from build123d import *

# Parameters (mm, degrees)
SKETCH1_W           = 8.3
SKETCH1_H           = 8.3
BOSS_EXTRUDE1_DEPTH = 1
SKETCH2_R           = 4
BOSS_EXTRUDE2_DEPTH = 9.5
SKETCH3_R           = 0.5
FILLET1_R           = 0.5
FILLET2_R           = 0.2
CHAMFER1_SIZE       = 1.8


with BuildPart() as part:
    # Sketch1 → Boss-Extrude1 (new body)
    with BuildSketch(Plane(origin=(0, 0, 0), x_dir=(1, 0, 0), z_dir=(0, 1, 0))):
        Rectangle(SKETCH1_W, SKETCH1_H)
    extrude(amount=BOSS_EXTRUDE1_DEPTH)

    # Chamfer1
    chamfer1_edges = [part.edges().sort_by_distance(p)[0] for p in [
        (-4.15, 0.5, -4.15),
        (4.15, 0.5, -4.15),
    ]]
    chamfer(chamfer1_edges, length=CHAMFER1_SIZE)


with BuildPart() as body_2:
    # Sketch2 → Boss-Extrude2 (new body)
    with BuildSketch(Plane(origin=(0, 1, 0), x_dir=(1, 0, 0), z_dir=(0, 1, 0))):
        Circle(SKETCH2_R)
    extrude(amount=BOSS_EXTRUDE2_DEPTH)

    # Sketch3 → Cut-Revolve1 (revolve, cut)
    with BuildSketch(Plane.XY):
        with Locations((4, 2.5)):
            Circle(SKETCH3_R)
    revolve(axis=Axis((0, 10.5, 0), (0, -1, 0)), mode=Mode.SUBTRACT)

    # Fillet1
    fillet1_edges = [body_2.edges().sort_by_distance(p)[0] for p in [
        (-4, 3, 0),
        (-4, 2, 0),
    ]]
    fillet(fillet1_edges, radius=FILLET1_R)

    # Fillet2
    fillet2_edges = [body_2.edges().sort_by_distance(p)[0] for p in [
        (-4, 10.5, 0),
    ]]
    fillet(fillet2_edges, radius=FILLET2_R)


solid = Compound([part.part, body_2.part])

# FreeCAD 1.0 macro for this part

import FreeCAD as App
import Part
import Sketcher
from FreeCAD import Vector


def edges_at(feature, points):
    """Names of the edges that pass closest to the given points."""
    edges = feature.Shape.Edges
    near = lambda p: min(range(len(edges)), key=lambda i: edges[i].distToShape(Part.Vertex(*p))[0])
    return sorted({f"Edge{near(p) + 1}" for p in points})


def add_polygon(sketch, points):
    """Adds a closed chain of lines whose ends are joined by coincident constraints."""
    first, n = sketch.GeometryCount, len(points)
    for a, b in zip(points, points[1:] + points[:1]):
        sketch.addGeometry(Part.LineSegment(App.Vector(*a, 0), App.Vector(*b, 0)), False)
    for i in range(n):
        sketch.addConstraint(Sketcher.Constraint("Coincident", first + i, 2, first + (i + 1) % n, 1))

doc = App.newDocument("Part")
body = doc.addObject("PartDesign::Body", "Body")

sketch1 = body.newObject("Sketcher::SketchObject", "Sketch")
sketch1.AttachmentSupport = (doc.getObject("XZ_Plane"), [""])
sketch1.MapMode = "FlatFace"
add_polygon(sketch1, [(-4, -4), (-4, 4), (4, 4), (4, -4)])
sketch1.addConstraint(Sketcher.Constraint("Vertical", 0))
sketch1.addConstraint(Sketcher.Constraint("Horizontal", 1))
sketch1.addConstraint(Sketcher.Constraint("Vertical", 2))
sketch1.addConstraint(Sketcher.Constraint("Horizontal", 3))
sketch1.addConstraint(Sketcher.Constraint("Symmetric", 0, 2, 2, 2, -1, 1))
sketch1.addConstraint(Sketcher.Constraint("Equal", 3, 0))
sketch1.addConstraint(Sketcher.Constraint("DistanceX", 1, 1, 1, 2, 8.3))
pad1 = body.newObject("PartDesign::Pad", "Pad")
pad1.Profile = sketch1
pad1.Length = 1
pad1.Reversed = True
doc.recompute()

chamfer = body.newObject("PartDesign::Chamfer", "Chamfer")
chamfer.Base = (pad1, edges_at(pad1, [(-4.15, 0.5, -4.15), (4.15, 0.5, -4.15)]))
chamfer.Size = 1.8
body2 = doc.addObject("PartDesign::Body", "Body001")

sketch2 = body2.newObject("Sketcher::SketchObject", "Sketch001")
sketch2.AttachmentSupport = (doc.getObject("XZ_Plane001"), [""])
sketch2.MapMode = "FlatFace"
sketch2.AttachmentOffset = App.Placement(Vector(0, 0, -1), App.Rotation())
sketch2.addGeometry(Part.Circle(Vector(0, 0, 0), Vector(0, 0, 1), 4), False)
sketch2.addConstraint(Sketcher.Constraint("Coincident", 0, 3, -1, 1))
sketch2.addConstraint(Sketcher.Constraint("Diameter", 0, 8.0))
pad2 = body2.newObject("PartDesign::Pad", "Pad001")
pad2.Profile = sketch2
pad2.Length = 9.5
pad2.Reversed = True

sketch3 = body2.newObject("Sketcher::SketchObject", "Sketch002")
sketch3.AttachmentSupport = (doc.getObject("XY_Plane001"), [""])
sketch3.MapMode = "FlatFace"
sketch3.addGeometry(Part.Circle(Vector(4, 2.5, 0), Vector(0, 0, 1), 0.5), False)
sketch3.addConstraint(Sketcher.Constraint("Diameter", 0, 1.0))
sketch3.addConstraint(Sketcher.Constraint("DistanceX", -1, 1, 0, 3, 4.0))
sketch3.addConstraint(Sketcher.Constraint("DistanceY", -1, 1, 0, 3, 2.5))
groove = body2.newObject("PartDesign::Groove", "Groove")
groove.Profile = sketch3
groove.ReferenceAxis = (sketch3, ["V_Axis"])
groove.Angle = 360
doc.recompute()

fillet = body2.newObject("PartDesign::Fillet", "Fillet")
fillet.Base = (groove, edges_at(groove, [(-4, 3, 0), (-4, 2, 0)]))
fillet.Radius = 0.5
doc.recompute()

fillet2 = body2.newObject("PartDesign::Fillet", "Fillet001")
fillet2.Base = (fillet, edges_at(fillet, [(-4, 10.5, 0)]))
fillet2.Radius = 0.2

doc.recompute()
